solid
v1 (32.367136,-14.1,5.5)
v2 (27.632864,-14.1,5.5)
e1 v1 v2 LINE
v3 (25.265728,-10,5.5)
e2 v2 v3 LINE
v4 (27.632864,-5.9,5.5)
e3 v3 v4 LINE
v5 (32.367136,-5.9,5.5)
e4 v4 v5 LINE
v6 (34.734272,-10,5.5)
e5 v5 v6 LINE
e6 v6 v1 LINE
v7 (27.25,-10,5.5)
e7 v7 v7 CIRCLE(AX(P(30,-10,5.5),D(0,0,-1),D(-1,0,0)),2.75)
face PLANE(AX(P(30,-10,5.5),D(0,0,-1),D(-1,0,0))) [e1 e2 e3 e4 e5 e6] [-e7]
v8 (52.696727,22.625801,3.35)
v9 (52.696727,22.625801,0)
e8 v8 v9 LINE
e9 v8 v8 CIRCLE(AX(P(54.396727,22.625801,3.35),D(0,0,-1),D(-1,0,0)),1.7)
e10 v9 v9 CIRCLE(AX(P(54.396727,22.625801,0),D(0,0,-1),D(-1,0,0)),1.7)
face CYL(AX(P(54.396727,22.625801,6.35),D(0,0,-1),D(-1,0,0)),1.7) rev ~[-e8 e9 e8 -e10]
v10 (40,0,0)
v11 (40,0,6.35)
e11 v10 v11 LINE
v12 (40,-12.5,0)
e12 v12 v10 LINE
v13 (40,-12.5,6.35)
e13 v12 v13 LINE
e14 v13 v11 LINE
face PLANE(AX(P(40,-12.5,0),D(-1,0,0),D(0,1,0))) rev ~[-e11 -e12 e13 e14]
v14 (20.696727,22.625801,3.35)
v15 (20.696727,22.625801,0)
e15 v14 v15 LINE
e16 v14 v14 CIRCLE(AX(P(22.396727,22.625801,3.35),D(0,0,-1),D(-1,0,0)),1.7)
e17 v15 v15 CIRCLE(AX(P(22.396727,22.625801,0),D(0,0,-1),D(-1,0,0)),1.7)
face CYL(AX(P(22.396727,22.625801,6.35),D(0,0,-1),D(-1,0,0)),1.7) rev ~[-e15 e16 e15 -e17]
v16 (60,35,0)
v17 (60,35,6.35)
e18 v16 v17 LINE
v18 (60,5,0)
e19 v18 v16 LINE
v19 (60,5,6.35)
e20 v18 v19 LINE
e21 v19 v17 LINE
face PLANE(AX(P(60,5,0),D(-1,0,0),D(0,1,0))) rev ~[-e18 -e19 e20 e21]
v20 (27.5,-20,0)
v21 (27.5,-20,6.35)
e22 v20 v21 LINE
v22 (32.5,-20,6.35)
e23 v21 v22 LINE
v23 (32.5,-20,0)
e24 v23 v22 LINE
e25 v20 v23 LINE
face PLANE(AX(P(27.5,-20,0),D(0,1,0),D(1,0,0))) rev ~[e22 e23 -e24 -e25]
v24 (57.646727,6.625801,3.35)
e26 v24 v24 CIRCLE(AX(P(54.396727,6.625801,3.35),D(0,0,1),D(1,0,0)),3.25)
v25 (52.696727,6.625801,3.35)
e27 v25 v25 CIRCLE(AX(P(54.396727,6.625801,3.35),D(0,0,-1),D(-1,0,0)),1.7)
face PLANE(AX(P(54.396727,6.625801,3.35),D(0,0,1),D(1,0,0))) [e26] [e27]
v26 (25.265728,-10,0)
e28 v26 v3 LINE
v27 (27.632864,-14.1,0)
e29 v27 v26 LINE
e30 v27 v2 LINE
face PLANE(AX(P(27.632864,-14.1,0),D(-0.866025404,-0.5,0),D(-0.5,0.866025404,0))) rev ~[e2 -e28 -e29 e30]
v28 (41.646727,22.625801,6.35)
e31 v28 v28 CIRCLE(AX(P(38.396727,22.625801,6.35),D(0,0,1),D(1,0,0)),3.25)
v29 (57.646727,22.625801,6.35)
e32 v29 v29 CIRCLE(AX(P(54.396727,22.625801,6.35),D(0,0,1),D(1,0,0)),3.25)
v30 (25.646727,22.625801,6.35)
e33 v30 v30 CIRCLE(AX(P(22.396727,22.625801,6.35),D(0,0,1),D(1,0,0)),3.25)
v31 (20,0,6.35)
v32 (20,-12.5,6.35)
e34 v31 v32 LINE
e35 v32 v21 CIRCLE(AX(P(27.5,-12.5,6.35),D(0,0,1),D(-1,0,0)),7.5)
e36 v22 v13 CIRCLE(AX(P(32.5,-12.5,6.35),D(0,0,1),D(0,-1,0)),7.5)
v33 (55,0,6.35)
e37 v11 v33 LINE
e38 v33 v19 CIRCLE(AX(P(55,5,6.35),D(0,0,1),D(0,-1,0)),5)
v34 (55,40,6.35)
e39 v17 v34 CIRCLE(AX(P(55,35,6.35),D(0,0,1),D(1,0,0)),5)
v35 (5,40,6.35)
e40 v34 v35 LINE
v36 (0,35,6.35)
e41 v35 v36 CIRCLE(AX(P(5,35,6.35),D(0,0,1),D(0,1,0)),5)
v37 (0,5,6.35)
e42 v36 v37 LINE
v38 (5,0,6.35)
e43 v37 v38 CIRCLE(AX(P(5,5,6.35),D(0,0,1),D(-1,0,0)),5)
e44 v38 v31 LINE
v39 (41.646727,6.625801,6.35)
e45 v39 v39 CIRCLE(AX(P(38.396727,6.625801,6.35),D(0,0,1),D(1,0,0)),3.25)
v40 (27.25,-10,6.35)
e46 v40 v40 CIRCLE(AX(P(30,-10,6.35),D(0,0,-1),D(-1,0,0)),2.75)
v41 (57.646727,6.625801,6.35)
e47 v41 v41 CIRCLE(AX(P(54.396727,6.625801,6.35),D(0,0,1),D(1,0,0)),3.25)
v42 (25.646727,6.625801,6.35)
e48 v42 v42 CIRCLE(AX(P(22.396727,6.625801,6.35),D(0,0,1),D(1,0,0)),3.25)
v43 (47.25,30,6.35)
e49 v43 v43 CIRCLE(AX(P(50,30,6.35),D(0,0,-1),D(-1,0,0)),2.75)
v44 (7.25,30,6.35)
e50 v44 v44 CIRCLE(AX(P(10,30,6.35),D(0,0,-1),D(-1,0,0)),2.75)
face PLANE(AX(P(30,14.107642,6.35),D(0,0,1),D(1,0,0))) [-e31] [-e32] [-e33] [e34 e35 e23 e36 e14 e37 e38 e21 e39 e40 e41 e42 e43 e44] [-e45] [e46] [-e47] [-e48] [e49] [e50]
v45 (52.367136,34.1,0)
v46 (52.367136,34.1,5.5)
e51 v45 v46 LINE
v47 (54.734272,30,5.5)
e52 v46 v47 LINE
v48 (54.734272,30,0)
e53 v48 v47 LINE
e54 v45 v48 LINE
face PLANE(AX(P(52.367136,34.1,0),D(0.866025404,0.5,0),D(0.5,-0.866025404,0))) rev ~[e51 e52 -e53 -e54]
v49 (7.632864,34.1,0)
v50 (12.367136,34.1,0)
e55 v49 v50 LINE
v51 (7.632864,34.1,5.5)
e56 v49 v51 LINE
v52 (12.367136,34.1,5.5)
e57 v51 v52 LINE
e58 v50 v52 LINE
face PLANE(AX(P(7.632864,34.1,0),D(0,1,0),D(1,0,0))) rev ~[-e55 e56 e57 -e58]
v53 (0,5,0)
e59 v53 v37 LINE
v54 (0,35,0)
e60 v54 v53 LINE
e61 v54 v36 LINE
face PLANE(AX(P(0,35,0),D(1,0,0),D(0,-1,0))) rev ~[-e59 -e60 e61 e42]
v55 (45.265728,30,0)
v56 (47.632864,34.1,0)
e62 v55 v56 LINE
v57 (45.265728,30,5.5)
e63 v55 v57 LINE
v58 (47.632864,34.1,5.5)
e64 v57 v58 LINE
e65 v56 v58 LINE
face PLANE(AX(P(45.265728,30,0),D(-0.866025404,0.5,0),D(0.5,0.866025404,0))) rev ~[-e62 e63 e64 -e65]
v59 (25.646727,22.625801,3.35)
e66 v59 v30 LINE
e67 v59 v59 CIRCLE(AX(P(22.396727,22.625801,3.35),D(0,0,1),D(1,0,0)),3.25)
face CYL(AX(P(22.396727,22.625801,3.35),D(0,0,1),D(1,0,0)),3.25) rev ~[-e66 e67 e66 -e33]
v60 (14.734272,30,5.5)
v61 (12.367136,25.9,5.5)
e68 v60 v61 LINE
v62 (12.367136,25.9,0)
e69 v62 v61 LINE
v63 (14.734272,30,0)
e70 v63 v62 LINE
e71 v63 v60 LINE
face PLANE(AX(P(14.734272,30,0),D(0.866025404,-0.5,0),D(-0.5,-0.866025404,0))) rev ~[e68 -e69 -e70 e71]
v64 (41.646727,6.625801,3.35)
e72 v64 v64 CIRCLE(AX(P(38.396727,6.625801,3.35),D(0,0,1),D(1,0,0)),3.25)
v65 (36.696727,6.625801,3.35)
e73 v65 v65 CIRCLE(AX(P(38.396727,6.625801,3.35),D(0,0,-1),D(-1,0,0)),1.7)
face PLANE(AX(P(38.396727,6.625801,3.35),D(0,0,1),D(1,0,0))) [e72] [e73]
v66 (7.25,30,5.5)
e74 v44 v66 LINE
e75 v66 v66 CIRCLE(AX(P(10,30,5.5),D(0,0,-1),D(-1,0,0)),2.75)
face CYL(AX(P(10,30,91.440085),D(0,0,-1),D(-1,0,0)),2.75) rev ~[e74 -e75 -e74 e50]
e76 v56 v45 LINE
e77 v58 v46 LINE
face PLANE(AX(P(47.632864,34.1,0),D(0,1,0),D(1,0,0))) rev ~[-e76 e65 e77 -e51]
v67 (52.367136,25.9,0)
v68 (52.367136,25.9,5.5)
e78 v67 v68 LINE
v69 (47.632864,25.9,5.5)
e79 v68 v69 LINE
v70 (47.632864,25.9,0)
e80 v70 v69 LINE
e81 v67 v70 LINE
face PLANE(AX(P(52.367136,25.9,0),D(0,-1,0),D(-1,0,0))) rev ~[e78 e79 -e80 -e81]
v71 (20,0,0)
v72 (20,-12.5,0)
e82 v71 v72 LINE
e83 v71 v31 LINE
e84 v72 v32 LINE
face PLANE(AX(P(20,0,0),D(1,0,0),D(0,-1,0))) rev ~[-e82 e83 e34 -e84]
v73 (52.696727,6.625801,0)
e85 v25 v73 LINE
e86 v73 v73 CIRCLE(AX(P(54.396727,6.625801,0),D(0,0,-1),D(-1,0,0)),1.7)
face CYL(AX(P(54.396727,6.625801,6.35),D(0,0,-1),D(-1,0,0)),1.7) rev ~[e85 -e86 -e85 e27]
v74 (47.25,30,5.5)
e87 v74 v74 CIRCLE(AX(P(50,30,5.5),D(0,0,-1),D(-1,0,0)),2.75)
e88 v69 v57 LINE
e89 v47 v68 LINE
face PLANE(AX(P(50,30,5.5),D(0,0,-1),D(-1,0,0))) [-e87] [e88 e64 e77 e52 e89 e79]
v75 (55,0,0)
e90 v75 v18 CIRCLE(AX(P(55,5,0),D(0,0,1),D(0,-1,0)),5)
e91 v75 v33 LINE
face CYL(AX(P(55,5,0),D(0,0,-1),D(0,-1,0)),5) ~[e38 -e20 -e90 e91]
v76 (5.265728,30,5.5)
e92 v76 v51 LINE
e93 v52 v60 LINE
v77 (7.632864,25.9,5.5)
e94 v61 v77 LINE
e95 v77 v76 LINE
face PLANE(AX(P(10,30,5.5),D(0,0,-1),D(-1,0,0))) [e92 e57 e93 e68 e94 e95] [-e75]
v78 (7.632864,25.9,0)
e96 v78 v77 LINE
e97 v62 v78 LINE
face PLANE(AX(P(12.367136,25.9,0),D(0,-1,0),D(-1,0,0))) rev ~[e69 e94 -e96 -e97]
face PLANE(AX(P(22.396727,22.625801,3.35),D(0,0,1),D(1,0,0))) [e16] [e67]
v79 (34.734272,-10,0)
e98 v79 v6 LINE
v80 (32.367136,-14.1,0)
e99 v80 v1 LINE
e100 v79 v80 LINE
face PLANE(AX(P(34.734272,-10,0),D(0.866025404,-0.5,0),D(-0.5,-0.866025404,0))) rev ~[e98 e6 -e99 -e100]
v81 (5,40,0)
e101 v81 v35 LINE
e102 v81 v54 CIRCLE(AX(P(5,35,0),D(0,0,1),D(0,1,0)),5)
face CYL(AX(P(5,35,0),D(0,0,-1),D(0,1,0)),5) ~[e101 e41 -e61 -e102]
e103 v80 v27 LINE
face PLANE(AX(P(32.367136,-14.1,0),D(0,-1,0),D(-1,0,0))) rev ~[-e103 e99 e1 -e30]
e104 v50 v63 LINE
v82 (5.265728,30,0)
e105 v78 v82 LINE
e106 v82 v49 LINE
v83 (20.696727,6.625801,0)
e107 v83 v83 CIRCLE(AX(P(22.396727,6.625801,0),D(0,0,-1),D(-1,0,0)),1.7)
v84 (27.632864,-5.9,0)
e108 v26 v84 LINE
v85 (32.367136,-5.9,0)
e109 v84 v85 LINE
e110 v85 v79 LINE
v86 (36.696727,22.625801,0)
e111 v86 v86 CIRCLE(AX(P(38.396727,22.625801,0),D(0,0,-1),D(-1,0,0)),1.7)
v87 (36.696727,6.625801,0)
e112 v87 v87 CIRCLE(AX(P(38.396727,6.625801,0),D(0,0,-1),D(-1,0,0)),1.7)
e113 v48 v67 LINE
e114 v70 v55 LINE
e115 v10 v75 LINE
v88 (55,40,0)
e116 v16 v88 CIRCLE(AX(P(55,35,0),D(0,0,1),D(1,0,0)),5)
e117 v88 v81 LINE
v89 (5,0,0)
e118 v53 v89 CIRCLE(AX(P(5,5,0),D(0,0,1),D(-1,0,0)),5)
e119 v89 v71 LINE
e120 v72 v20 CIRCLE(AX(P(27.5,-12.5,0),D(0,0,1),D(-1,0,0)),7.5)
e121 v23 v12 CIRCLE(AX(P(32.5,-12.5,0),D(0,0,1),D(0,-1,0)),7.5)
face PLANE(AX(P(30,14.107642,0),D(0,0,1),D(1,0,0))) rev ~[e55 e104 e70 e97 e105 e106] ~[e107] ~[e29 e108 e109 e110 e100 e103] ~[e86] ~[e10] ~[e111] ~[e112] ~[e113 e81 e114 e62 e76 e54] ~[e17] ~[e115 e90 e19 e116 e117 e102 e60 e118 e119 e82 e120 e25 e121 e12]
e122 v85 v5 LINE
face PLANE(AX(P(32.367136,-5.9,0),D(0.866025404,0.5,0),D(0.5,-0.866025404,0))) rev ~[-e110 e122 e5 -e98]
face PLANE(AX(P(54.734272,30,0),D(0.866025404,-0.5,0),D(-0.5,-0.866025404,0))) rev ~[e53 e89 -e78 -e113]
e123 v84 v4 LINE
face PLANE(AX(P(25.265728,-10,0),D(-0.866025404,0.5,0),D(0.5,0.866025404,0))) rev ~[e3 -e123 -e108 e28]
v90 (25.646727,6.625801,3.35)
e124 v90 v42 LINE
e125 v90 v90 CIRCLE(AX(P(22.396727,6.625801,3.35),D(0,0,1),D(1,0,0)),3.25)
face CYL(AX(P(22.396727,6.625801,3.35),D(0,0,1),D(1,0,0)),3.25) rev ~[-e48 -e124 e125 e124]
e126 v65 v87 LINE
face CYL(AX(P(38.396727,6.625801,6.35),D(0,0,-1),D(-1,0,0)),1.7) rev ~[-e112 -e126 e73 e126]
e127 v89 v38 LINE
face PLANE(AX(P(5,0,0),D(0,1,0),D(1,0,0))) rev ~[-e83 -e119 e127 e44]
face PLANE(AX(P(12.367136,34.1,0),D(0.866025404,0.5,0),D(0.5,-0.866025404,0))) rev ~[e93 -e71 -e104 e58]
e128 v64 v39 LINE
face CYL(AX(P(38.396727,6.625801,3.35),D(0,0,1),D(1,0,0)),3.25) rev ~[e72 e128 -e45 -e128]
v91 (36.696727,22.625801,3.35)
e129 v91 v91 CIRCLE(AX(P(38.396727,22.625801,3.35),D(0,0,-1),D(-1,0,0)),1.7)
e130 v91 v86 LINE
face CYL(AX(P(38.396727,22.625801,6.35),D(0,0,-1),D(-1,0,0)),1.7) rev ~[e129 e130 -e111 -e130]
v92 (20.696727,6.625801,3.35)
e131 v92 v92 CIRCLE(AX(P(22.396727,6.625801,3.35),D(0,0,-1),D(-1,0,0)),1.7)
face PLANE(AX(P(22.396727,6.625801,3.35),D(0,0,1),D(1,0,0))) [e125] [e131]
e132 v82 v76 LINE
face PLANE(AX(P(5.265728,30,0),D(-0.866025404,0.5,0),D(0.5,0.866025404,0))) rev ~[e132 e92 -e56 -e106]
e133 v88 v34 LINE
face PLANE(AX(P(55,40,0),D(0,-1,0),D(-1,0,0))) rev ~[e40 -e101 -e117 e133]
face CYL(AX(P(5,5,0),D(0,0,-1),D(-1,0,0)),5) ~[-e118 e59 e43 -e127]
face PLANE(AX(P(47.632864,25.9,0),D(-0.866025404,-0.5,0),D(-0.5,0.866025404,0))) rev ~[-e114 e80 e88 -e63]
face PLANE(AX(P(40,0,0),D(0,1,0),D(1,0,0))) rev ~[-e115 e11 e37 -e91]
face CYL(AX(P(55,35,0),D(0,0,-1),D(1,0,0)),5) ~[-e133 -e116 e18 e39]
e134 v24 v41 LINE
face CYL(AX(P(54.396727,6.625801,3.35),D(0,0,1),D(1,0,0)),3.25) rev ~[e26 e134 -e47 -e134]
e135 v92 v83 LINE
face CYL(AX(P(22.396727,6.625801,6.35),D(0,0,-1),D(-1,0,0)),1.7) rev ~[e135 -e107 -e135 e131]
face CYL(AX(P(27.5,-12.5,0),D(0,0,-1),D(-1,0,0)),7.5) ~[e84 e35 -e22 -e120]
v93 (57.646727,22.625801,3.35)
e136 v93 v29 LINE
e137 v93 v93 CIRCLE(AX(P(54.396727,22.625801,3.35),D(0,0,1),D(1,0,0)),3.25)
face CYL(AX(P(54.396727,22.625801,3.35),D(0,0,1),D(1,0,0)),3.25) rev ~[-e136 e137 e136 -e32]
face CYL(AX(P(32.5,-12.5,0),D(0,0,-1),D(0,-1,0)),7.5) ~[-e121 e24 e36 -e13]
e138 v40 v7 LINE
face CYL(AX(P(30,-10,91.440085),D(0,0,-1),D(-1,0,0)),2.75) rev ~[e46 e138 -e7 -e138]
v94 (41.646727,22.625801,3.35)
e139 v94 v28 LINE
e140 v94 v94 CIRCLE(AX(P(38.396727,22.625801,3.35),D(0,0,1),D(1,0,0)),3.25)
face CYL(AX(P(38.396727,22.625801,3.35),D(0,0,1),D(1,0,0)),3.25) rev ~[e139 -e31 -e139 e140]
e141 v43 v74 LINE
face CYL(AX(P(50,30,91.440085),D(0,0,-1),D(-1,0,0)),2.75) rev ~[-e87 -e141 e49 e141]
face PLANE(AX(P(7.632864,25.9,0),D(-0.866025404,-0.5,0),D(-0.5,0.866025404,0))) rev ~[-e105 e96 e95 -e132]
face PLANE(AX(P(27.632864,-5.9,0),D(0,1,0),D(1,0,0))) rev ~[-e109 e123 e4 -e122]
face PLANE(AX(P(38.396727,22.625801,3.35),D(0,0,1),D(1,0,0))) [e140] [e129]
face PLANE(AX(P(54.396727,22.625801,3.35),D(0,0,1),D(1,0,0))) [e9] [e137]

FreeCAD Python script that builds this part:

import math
import FreeCAD as App
import Part
import Sketcher

V = App.Vector
Q = App.Units.Quantity

doc = App.newDocument("Part")
body = doc.addObject("PartDesign::Body", "Body")

sketch1 = body.newObject("Sketcher::SketchObject", "Sketch")
sketch1.AttachmentSupport = (doc.getObject("XY_Plane"), [""])
sketch1.MapMode = "FlatFace"
sketch1.addGeometry([
    Part.LineSegment(V(5, 0, 0), V(20, 0, 0)),
    Part.LineSegment(V(20, 0, 0), V(20, -12, 0)),
    Part.ArcOfCircle(Part.Circle(V(28, -12, 0), V(0, 0, 1), 8), math.radians(180), math.radians(270)),
    Part.LineSegment(V(28, -20, 0), V(32, -20, 0)),
    Part.ArcOfCircle(Part.Circle(V(32, -12, 0), V(0, 0, 1), 8), math.radians(-90), math.radians(0)),
    Part.LineSegment(V(40, -12, 0), V(40, 0, 0)),
    Part.LineSegment(V(40, 0, 0), V(55, 0, 0)),
    Part.ArcOfCircle(Part.Circle(V(55, 5, 0), V(0, 0, 1), 5), math.radians(-90), math.radians(0)),
    Part.LineSegment(V(60, 5, 0), V(60, 35, 0)),
    Part.ArcOfCircle(Part.Circle(V(55, 35, 0), V(0, 0, 1), 5), math.radians(0), math.radians(90)),
    Part.LineSegment(V(55, 40, 0), V(5, 40, 0)),
    Part.ArcOfCircle(Part.Circle(V(5, 35, 0), V(0, 0, 1), 5), math.radians(90), math.radians(180)),
    Part.LineSegment(V(0, 35, 0), V(0, 5, 0)),
    Part.ArcOfCircle(Part.Circle(V(5, 5, 0), V(0, 0, 1), 5), math.radians(180), math.radians(270)),
], False)
sketch1.addConstraint([
    Sketcher.Constraint("Coincident", 0, 2, 1, 1),
    Sketcher.Constraint("Tangent", 1, 2, 2, 1),
    Sketcher.Constraint("Tangent", 2, 2, 3, 1),
    Sketcher.Constraint("Tangent", 3, 2, 4, 1),
    Sketcher.Constraint("Tangent", 4, 2, 5, 1),
    Sketcher.Constraint("Coincident", 5, 2, 6, 1),
    Sketcher.Constraint("Tangent", 6, 2, 7, 1),
    Sketcher.Constraint("Tangent", 7, 2, 8, 1),
    Sketcher.Constraint("Tangent", 8, 2, 9, 1),
    Sketcher.Constraint("Tangent", 9, 2, 10, 1),
    Sketcher.Constraint("Tangent", 10, 2, 11, 1),
    Sketcher.Constraint("Tangent", 11, 2, 12, 1),
    Sketcher.Constraint("Tangent", 12, 2, 13, 1),
    Sketcher.Constraint("Tangent", 13, 2, 0, 1),
    Sketcher.Constraint("Horizontal", 0),
    Sketcher.Constraint("Vertical", 1),
    Sketcher.Constraint("Horizontal", 3),
    Sketcher.Constraint("Vertical", 5),
    Sketcher.Constraint("Horizontal", 6),
    Sketcher.Constraint("Vertical", 8),
    Sketcher.Constraint("Horizontal", 10),
    Sketcher.Constraint("Vertical", 12),
    Sketcher.Constraint("Equal", 2, 4),
    Sketcher.Constraint("Equal", 7, 9),
    Sketcher.Constraint("Equal", 9, 11),
    Sketcher.Constraint("Equal", 11, 13),
    Sketcher.Constraint("PointOnObject", 0, 2, -1),
    Sketcher.Constraint("PointOnObject", 5, 2, -1),
    Sketcher.Constraint("PointOnObject", 11, 2, -2),
    Sketcher.Constraint("Equal", 0, 6),
    Sketcher.Constraint("Radius", 7, Q("5 mm")),
    Sketcher.Constraint("Radius", 2, Q("7.5 mm")),
    Sketcher.Constraint("DistanceX", 0, 1, 0, 2, Q("15 mm")),
    Sketcher.Constraint("DistanceX", 3, 1, 3, 2, Q("5 mm")),
    Sketcher.Constraint("DistanceY", 8, 1, 8, 2, Q("30 mm")),
    Sketcher.Constraint("DistanceY", 1, 2, 1, 1, Q("12.5 mm")),
])
pad1 = body.newObject("PartDesign::Pad", "Pad")
pad1.Profile = sketch1
pad1.Length = 6.35

sketch2 = body.newObject("Sketcher::SketchObject", "Sketch001")
sketch2.AttachmentSupport = (doc.getObject("XY_Plane"), [""])
sketch2.MapMode = "FlatFace"
sketch2.AttachmentOffset = App.Placement(V(0, 0, 6.35), App.Rotation())
sketch2.addGeometry([
    Part.Circle(V(30, -10, 0), V(0, 0, 1), 2.8),
    Part.Circle(V(10, 30, 0), V(0, 0, 1), 2.8),
    Part.Circle(V(50, 30, 0), V(0, 0, 1), 2.8),
], False)
sketch2.addConstraint([
    Sketcher.Constraint("Equal", 0, 1),
    Sketcher.Constraint("Equal", 1, 2),
    Sketcher.Constraint("Horizontal", 1, 3, 2, 3),
    Sketcher.Constraint("Diameter", 0, Q("5.5 mm")),
    Sketcher.Constraint("DistanceX", -1, 1, 0, 3, Q("30 mm")),
    Sketcher.Constraint("DistanceY", 0, 3, -1, 1, Q("10 mm")),
    Sketcher.Constraint("DistanceX", -1, 1, 1, 3, Q("10 mm")),
    Sketcher.Constraint("DistanceY", -1, 1, 1, 3, Q("30 mm")),
    Sketcher.Constraint("DistanceX", -1, 1, 2, 3, Q("50 mm")),
])
doc.recompute()
hole = body.newObject("PartDesign::Hole", "Hole")
hole.Profile = sketch2
hole.ThreadType = "None"
hole.Diameter = 5.5
hole.DepthType = "ThroughAll"

sketch3 = body.newObject("Sketcher::SketchObject", "Sketch002")
sketch3.AttachmentSupport = (doc.getObject("XY_Plane"), [""])
sketch3.MapMode = "FlatFace"
sketch3.AttachmentOffset = App.Placement(V(0, 0, 6.35), App.Rotation())
sketch3.addGeometry([
    Part.Circle(V(38.4, 22.6, 0), V(0, 0, 1), 1.7),
    Part.Circle(V(54.4, 6.6, 0), V(0, 0, 1), 1.7),
    Part.Circle(V(38.4, 6.6, 0), V(0, 0, 1), 1.7),
    Part.Circle(V(54.4, 22.6, 0), V(0, 0, 1), 1.7),
    Part.Circle(V(22.4, 6.6, 0), V(0, 0, 1), 1.7),
    Part.Circle(V(22.4, 22.6, 0), V(0, 0, 1), 1.7),
], False)
sketch3.addConstraint([
    Sketcher.Constraint("Equal", 0, 1),
    Sketcher.Constraint("Equal", 1, 2),
    Sketcher.Constraint("Equal", 2, 3),
    Sketcher.Constraint("Equal", 3, 4),
    Sketcher.Constraint("Equal", 4, 5),
    Sketcher.Constraint("Horizontal", 1, 3, 2, 3),
    Sketcher.Constraint("Horizontal", 0, 3, 3, 3),
    Sketcher.Constraint("Horizontal", 2, 3, 4, 3),
    Sketcher.Constraint("Horizontal", 3, 3, 5, 3),
    Sketcher.Constraint("Vertical", 0, 3, 2, 3),
    Sketcher.Constraint("Vertical", 1, 3, 3, 3),
    Sketcher.Constraint("Vertical", 4, 3, 5, 3),
    Sketcher.Constraint("Diameter", 0, Q("3.4 mm")),
    Sketcher.Constraint("DistanceX", 0, 3, 1, 3, Q("16 mm")),
    Sketcher.Constraint("DistanceY", 1, 3, 0, 3, Q("16 mm")),
    Sketcher.Constraint("DistanceX", 4, 3, 2, 3, Q("16 mm")),
    Sketcher.Constraint("DistanceY", -1, 1, 0, 3, Q("22.625801 mm")),
    Sketcher.Constraint("DistanceX", -1, 1, 0, 3, Q("38.396727 mm")),
])
doc.recompute()
hole2 = body.newObject("PartDesign::Hole", "Hole001")
hole2.Profile = sketch3
hole2.ThreadType = "None"
hole2.Diameter = 3.4
hole2.DepthType = "ThroughAll"
hole2.HoleCutType = "Counterbore"
hole2.HoleCutDiameter = 6.5
hole2.HoleCutDepth = 3

sketch4 = body.newObject("Sketcher::SketchObject", "Sketch003")
sketch4.AttachmentSupport = (doc.getObject("XY_Plane"), [""])
sketch4.MapMode = "FlatFace"
sketch4.addGeometry([
    Part.LineSegment(V(45.3, 30, 0), V(47.6, 34.1, 0)),
    Part.LineSegment(V(47.6, 34.1, 0), V(52.4, 34.1, 0)),
    Part.LineSegment(V(52.4, 34.1, 0), V(54.7, 30, 0)),
    Part.LineSegment(V(54.7, 30, 0), V(52.4, 25.9, 0)),
    Part.LineSegment(V(52.4, 25.9, 0), V(47.6, 25.9, 0)),
    Part.LineSegment(V(47.6, 25.9, 0), V(45.3, 30, 0)),
    Part.LineSegment(V(5.3, 30, 0), V(7.6, 34.1, 0)),
    Part.LineSegment(V(7.6, 34.1, 0), V(12.4, 34.1, 0)),
    Part.LineSegment(V(12.4, 34.1, 0), V(14.7, 30, 0)),
    Part.LineSegment(V(14.7, 30, 0), V(12.4, 25.9, 0)),
    Part.LineSegment(V(12.4, 25.9, 0), V(7.6, 25.9, 0)),
    Part.LineSegment(V(7.6, 25.9, 0), V(5.3, 30, 0)),
    Part.LineSegment(V(25.3, -10, 0), V(27.6, -5.9, 0)),
    Part.LineSegment(V(27.6, -5.9, 0), V(32.4, -5.9, 0)),
    Part.LineSegment(V(32.4, -5.9, 0), V(34.7, -10, 0)),
    Part.LineSegment(V(34.7, -10, 0), V(32.4, -14.1, 0)),
    Part.LineSegment(V(32.4, -14.1, 0), V(27.6, -14.1, 0)),
    Part.LineSegment(V(27.6, -14.1, 0), V(25.3, -10, 0)),
], False)
sketch4.addConstraint([
    Sketcher.Constraint("Coincident", 0, 2, 1, 1),
    Sketcher.Constraint("Coincident", 1, 2, 2, 1),
    Sketcher.Constraint("Coincident", 2, 2, 3, 1),
    Sketcher.Constraint("Coincident", 3, 2, 4, 1),
    Sketcher.Constraint("Coincident", 4, 2, 5, 1),
    Sketcher.Constraint("Coincident", 5, 2, 0, 1),
    Sketcher.Constraint("Coincident", 6, 2, 7, 1),
    Sketcher.Constraint("Coincident", 7, 2, 8, 1),
    Sketcher.Constraint("Coincident", 8, 2, 9, 1),
    Sketcher.Constraint("Coincident", 9, 2, 10, 1),
    Sketcher.Constraint("Coincident", 10, 2, 11, 1),
    Sketcher.Constraint("Coincident", 11, 2, 6, 1),
    Sketcher.Constraint("Coincident", 12, 2, 13, 1),
    Sketcher.Constraint("Coincident", 13, 2, 14, 1),
    Sketcher.Constraint("Coincident", 14, 2, 15, 1),
    Sketcher.Constraint("Coincident", 15, 2, 16, 1),
    Sketcher.Constraint("Coincident", 16, 2, 17, 1),
    Sketcher.Constraint("Coincident", 17, 2, 12, 1),
    Sketcher.Constraint("Horizontal", 1),
    Sketcher.Constraint("Horizontal", 4),
    Sketcher.Constraint("Horizontal", 7),
    Sketcher.Constraint("Horizontal", 10),
    Sketcher.Constraint("Horizontal", 13),
    Sketcher.Constraint("Horizontal", 16),
    Sketcher.Constraint("Parallel", 0, 3),
    Sketcher.Constraint("Parallel", 2, 5),
    Sketcher.Constraint("Parallel", 3, 6),
    Sketcher.Constraint("Parallel", 5, 8),
    Sketcher.Constraint("Parallel", 6, 9),
    Sketcher.Constraint("Parallel", 8, 11),
    Sketcher.Constraint("Parallel", 9, 12),
    Sketcher.Constraint("Parallel", 11, 14),
    Sketcher.Constraint("Parallel", 12, 15),
    Sketcher.Constraint("Parallel", 14, 17),
    Sketcher.Constraint("Horizontal", 2, 2, 5, 2),
    Sketcher.Constraint("Horizontal", 1, 2, 6, 2),
    Sketcher.Constraint("Horizontal", 5, 2, 8, 2),
    Sketcher.Constraint("Horizontal", 4, 2, 9, 2),
    Sketcher.Constraint("Horizontal", 8, 2, 11, 2),
    Sketcher.Constraint("Horizontal", 14, 2, 17, 2),
    Sketcher.Constraint("Vertical", 1, 2, 3, 2),
    Sketcher.Constraint("Vertical", 0, 2, 4, 2),
    Sketcher.Constraint("Vertical", 13, 2, 15, 2),
    Sketcher.Constraint("Equal", 4, 7),
    Sketcher.Constraint("Equal", 10, 13),
    Sketcher.Constraint("Equal", 11, 12),
    Sketcher.Constraint("Angle", 0, Q("60 deg")),
    Sketcher.Constraint("DistanceY", -1, 1, 2, 2, Q("30 mm")),
    Sketcher.Constraint("DistanceY", 14, 2, -1, 1, Q("10 mm")),
    Sketcher.Constraint("DistanceX", 6, 2, 0, 2, Q("40 mm")),
    Sketcher.Constraint("DistanceX", 12, 2, 4, 2, Q("20 mm")),
    Sketcher.Constraint("DistanceY", -1, 1, 0, 2, Q("34.1 mm")),
    Sketcher.Constraint("DistanceX", 1, 1, 1, 2, Q("4.734272 mm")),
    Sketcher.Constraint("DistanceX", -1, 1, 0, 2, Q("47.632864 mm")),
])
pocket1 = body.newObject("PartDesign::Pocket", "Pocket")
pocket1.Profile = sketch4
pocket1.Length = 5.5
pocket1.Reversed = True

doc.recompute()
